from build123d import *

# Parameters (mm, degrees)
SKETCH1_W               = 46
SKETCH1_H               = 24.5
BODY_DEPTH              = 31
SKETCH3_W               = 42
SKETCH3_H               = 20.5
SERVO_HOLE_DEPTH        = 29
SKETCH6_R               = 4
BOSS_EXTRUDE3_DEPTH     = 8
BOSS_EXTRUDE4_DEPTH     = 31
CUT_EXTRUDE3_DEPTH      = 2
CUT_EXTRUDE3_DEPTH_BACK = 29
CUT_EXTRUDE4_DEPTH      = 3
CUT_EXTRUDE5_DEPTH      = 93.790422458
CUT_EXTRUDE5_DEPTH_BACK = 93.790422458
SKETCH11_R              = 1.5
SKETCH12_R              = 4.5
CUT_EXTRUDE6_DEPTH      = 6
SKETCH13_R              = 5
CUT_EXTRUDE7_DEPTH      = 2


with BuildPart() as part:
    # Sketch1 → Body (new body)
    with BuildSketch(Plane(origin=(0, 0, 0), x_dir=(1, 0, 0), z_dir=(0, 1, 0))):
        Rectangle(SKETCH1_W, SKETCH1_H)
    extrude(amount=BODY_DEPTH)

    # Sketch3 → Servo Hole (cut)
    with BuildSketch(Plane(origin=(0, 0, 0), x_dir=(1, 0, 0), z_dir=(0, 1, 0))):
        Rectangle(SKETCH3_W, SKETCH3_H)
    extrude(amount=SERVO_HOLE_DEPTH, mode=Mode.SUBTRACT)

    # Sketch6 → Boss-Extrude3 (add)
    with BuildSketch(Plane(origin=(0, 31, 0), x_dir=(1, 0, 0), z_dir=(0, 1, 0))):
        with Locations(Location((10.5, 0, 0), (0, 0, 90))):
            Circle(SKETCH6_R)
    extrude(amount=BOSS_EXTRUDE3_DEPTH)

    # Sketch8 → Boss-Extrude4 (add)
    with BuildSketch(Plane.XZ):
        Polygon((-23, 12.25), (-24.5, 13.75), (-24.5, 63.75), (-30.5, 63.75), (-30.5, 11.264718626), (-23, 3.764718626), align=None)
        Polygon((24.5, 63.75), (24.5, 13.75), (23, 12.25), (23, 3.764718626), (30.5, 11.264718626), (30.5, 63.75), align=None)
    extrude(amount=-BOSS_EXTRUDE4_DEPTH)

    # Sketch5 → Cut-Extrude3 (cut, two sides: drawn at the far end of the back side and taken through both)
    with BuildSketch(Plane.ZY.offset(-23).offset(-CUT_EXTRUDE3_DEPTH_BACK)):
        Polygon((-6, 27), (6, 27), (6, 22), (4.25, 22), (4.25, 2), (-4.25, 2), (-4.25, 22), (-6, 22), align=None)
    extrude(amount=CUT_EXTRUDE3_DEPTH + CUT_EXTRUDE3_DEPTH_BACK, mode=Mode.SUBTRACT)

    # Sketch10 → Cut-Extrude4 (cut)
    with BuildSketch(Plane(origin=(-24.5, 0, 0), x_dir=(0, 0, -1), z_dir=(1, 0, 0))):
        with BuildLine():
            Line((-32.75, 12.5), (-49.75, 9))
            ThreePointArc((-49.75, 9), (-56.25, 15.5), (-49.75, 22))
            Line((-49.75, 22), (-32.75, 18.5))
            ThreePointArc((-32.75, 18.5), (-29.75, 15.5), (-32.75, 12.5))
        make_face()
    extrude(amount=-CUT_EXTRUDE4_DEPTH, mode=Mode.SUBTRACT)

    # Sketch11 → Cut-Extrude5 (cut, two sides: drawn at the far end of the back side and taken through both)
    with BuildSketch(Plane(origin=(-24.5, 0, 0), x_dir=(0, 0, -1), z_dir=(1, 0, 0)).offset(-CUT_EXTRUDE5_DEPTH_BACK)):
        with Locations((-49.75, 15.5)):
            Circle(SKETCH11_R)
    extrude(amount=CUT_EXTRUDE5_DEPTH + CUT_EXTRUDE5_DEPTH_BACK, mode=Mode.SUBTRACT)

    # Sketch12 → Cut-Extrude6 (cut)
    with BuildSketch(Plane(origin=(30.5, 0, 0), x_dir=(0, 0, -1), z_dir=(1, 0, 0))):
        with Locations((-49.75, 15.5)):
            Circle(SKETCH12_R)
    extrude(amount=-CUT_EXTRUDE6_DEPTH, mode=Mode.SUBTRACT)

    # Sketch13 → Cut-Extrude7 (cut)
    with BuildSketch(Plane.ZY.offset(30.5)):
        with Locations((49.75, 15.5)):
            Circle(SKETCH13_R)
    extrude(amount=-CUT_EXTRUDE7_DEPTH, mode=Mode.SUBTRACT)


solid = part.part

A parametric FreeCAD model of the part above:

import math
import FreeCAD as App
import Part
import Sketcher

V = App.Vector

doc = App.newDocument("Part")
params = doc.addObject("Spreadsheet::Sheet", "Params")
for row, (alias, value) in enumerate([
    ("sketch1_width", "46 mm"),
    ("sketch1_height", "24.5 mm"),
    ("pad1_length", "31 mm"),
    ("sketch2_width", "42 mm"),
    ("sketch2_height", "20.5 mm"),
    ("pocket1_length", "29 mm"),
    ("sketch3_diameter", "8 mm"),
    ("pad2_length", "8 mm"),
    ("sketch4_width", "6 mm"),
    ("sketch4_height", "50 mm"),
    ("pad3_length", "31 mm"),
    ("sketch5_width", "5 mm"),
    ("sketch5_width2", "20 mm"),
    ("sketch5_height", "12 mm"),
    ("sketch5_height2", "8.5 mm"),
    ("pocket2_length", "2 mm"),
    ("pocket2_length2", "29 mm"),
    ("sketch6_radius", "3 mm"),
    ("sketch6_radius2", "6.5 mm"),
    ("pocket3_length", "3 mm"),
    ("sketch7_diameter", "3 mm"),
    ("sketch8_diameter", "9 mm"),
    ("pocket5_length", "6 mm"),
    ("sketch9_diameter", "10 mm"),
    ("pocket6_length", "2 mm"),
], start=1):
    params.set(f"A{row}", alias)
    params.set(f"B{row}", "=" + value)
    params.setAlias(f"B{row}", alias)

body = doc.addObject("PartDesign::Body", "Body")

# Sketch on XZ plane
sketch1 = body.newObject("Sketcher::SketchObject", "Sketch")
sketch1.AttachmentSupport = (doc.getObject("XZ_Plane"), [""])
sketch1.MapMode = "FlatFace"
sketch1.addGeometry([
    Part.LineSegment(V(-23, -12, 0), V(-23, 12, 0)),
    Part.LineSegment(V(-23, 12, 0), V(23, 12, 0)),
    Part.LineSegment(V(23, 12, 0), V(23, -12, 0)),
    Part.LineSegment(V(23, -12, 0), V(-23, -12, 0)),
], False)
sketch1.addConstraint([
    Sketcher.Constraint("Coincident", 0, 2, 1, 1),
    Sketcher.Constraint("Coincident", 1, 2, 2, 1),
    Sketcher.Constraint("Coincident", 2, 2, 3, 1),
    Sketcher.Constraint("Coincident", 3, 2, 0, 1),
    Sketcher.Constraint("Vertical", 0),
    Sketcher.Constraint("Horizontal", 1),
    Sketcher.Constraint("Vertical", 2),
    Sketcher.Constraint("Horizontal", 3),
    Sketcher.Constraint("Symmetric", 0, 2, 2, 2, -1, 1),
    Sketcher.Constraint("DistanceX", 1, 1, 1, 2, 46.0),
    Sketcher.Constraint("DistanceY", 0, 1, 0, 2, 24.5),
])
sketch1.setExpression("Constraints[9]", "Params.sketch1_width")
sketch1.setExpression("Constraints[10]", "Params.sketch1_height")
pad1 = body.newObject("PartDesign::Pad", "Pad")
pad1.Profile = sketch1
pad1.setExpression("Length", "Params.pad1_length")
pad1.Reversed = True

# Sketch on XZ plane
sketch2 = body.newObject("Sketcher::SketchObject", "Sketch001")
sketch2.AttachmentSupport = (doc.getObject("XZ_Plane"), [""])
sketch2.MapMode = "FlatFace"
sketch2.addGeometry([
    Part.LineSegment(V(-21, -10, 0), V(-21, 10, 0)),
    Part.LineSegment(V(-21, 10, 0), V(21, 10, 0)),
    Part.LineSegment(V(21, 10, 0), V(21, -10, 0)),
    Part.LineSegment(V(21, -10, 0), V(-21, -10, 0)),
], False)
sketch2.addConstraint([
    Sketcher.Constraint("Coincident", 0, 2, 1, 1),
    Sketcher.Constraint("Coincident", 1, 2, 2, 1),
    Sketcher.Constraint("Coincident", 2, 2, 3, 1),
    Sketcher.Constraint("Coincident", 3, 2, 0, 1),
    Sketcher.Constraint("Vertical", 0),
    Sketcher.Constraint("Horizontal", 1),
    Sketcher.Constraint("Vertical", 2),
    Sketcher.Constraint("Horizontal", 3),
    Sketcher.Constraint("Symmetric", 0, 2, 2, 2, -1, 1),
    Sketcher.Constraint("DistanceX", 1, 1, 1, 2, 42.0),
    Sketcher.Constraint("DistanceY", 0, 1, 0, 2, 20.5),
])
sketch2.setExpression("Constraints[9]", "Params.sketch2_width")
sketch2.setExpression("Constraints[10]", "Params.sketch2_height")
pocket1 = body.newObject("PartDesign::Pocket", "Pocket")
pocket1.Profile = sketch2
pocket1.setExpression("Length", "Params.pocket1_length")

# Sketch on XZ plane
sketch3 = body.newObject("Sketcher::SketchObject", "Sketch002")
sketch3.AttachmentSupport = (doc.getObject("XZ_Plane"), [""])
sketch3.MapMode = "FlatFace"
sketch3.AttachmentOffset = App.Placement(V(0, 0, -31), App.Rotation())
sketch3.addGeometry(Part.Circle(V(10.5, 0, 0), V(0, 0, 1), 4), False)
sketch3.addConstraint([
    Sketcher.Constraint("PointOnObject", 0, 3, -1),
    Sketcher.Constraint("Diameter", 0, 8.0),
    Sketcher.Constraint("DistanceX", -1, 1, 0, 3, 10.5),
])
sketch3.setExpression("Constraints[1]", "Params.sketch3_diameter")
pad2 = body.newObject("PartDesign::Pad", "Pad001")
pad2.Profile = sketch3
pad2.setExpression("Length", "Params.pad2_length")
pad2.Reversed = True

# Sketch on XZ plane
sketch4 = body.newObject("Sketcher::SketchObject", "Sketch003")
sketch4.AttachmentSupport = (doc.getObject("XZ_Plane"), [""])
sketch4.MapMode = "FlatFace"
sketch4.addGeometry([
    Part.LineSegment(V(-23, 12.2, 0), V(-24.5, 13.8, 0)),  # 0
    Part.LineSegment(V(-24.5, 13.8, 0), V(-24.5, 63.8, 0)),  # 1
    Part.LineSegment(V(-24.5, 63.8, 0), V(-30.5, 63.8, 0)),  # 2
    Part.LineSegment(V(-30.5, 63.8, 0), V(-30.5, 11.3, 0)),  # 3
    Part.LineSegment(V(-30.5, 11.3, 0), V(-23, 3.8, 0)),  # 4
    Part.LineSegment(V(-23, 3.8, 0), V(-23, 12.2, 0)),  # 5
    Part.LineSegment(V(24.5, 63.8, 0), V(24.5, 13.8, 0)),  # 6
    Part.LineSegment(V(24.5, 13.8, 0), V(23, 12.2, 0)),  # 7
    Part.LineSegment(V(23, 12.2, 0), V(23, 3.8, 0)),  # 8
    Part.LineSegment(V(23, 3.8, 0), V(30.5, 11.3, 0)),  # 9
    Part.LineSegment(V(30.5, 11.3, 0), V(30.5, 63.8, 0)),  # 10
    Part.LineSegment(V(30.5, 63.8, 0), V(24.5, 63.8, 0)),  # 11
], False)
sketch4.addConstraint([
    Sketcher.Constraint("Coincident", 0, 2, 1, 1),
    Sketcher.Constraint("Coincident", 1, 2, 2, 1),
    Sketcher.Constraint("Coincident", 2, 2, 3, 1),
    Sketcher.Constraint("Coincident", 3, 2, 4, 1),
    Sketcher.Constraint("Coincident", 4, 2, 5, 1),
    Sketcher.Constraint("Coincident", 5, 2, 0, 1),
    Sketcher.Constraint("Coincident", 6, 2, 7, 1),
    Sketcher.Constraint("Coincident", 7, 2, 8, 1),
    Sketcher.Constraint("Coincident", 8, 2, 9, 1),
    Sketcher.Constraint("Coincident", 9, 2, 10, 1),
    Sketcher.Constraint("Coincident", 10, 2, 11, 1),
    Sketcher.Constraint("Coincident", 11, 2, 6, 1),
    Sketcher.Constraint("Vertical", 1),
    Sketcher.Constraint("Horizontal", 2),
    Sketcher.Constraint("Vertical", 3),
    Sketcher.Constraint("Vertical", 5),
    Sketcher.Constraint("Vertical", 6),
    Sketcher.Constraint("Vertical", 8),
    Sketcher.Constraint("Vertical", 10),
    Sketcher.Constraint("Horizontal", 11),
    Sketcher.Constraint("Symmetric", 0, 2, 6, 2, -2),
    Sketcher.Constraint("Symmetric", 5, 2, 7, 2, -2),
    Sketcher.Constraint("Symmetric", 3, 2, 9, 2, -2),
    Sketcher.Constraint("Parallel", 0, 4),
    Sketcher.Constraint("Perpendicular", 4, 7),
    Sketcher.Constraint("Parallel", 7, 9),
    Sketcher.Constraint("Horizontal", 2, 2, 10, 2),
    Sketcher.Constraint("DistanceX", 2, 2, 2, 1, 6.0),
    Sketcher.Constraint("DistanceY", 1, 1, 1, 2, 50.0),
    Sketcher.Constraint("DistanceX", 4, 2, -1, 1, 23.0),
    Sketcher.Constraint("DistanceX", 0, 2, 6, 2, 49.0),
    Sketcher.Constraint("DistanceY", -1, 1, 0, 2, 13.75),
    Sketcher.Constraint("DistanceY", 3, 2, 3, 1, 52.485281),
])
sketch4.setExpression("Constraints[27]", "Params.sketch4_width")
sketch4.setExpression("Constraints[28]", "Params.sketch4_height")
pad3 = body.newObject("PartDesign::Pad", "Pad002")
pad3.Profile = sketch4
pad3.setExpression("Length", "Params.pad3_length")
pad3.Reversed = True

# Sketch on YZ plane
sketch5 = body.newObject("Sketcher::SketchObject", "Sketch004")
sketch5.AttachmentSupport = (doc.getObject("YZ_Plane"), [""])
sketch5.MapMode = "FlatFace"
sketch5.AttachmentOffset = App.Placement(V(0, 0, 23), App.Rotation())
sketch5.addGeometry([
    Part.LineSegment(V(27, 6, 0), V(27, -6, 0)),  # 0
    Part.LineSegment(V(27, -6, 0), V(22, -6, 0)),  # 1
    Part.LineSegment(V(22, -6, 0), V(22, -4.2, 0)),  # 2
    Part.LineSegment(V(22, -4.2, 0), V(2, -4.2, 0)),  # 3
    Part.LineSegment(V(2, -4.2, 0), V(2, 4.2, 0)),  # 4
    Part.LineSegment(V(2, 4.2, 0), V(22, 4.2, 0)),  # 5
    Part.LineSegment(V(22, 4.2, 0), V(22, 6, 0)),  # 6
    Part.LineSegment(V(22, 6, 0), V(27, 6, 0)),  # 7
], False)
sketch5.addConstraint([
    Sketcher.Constraint("Coincident", 0, 2, 1, 1),
    Sketcher.Constraint("Coincident", 1, 2, 2, 1),
    Sketcher.Constraint("Coincident", 2, 2, 3, 1),
    Sketcher.Constraint("Coincident", 3, 2, 4, 1),
    Sketcher.Constraint("Coincident", 4, 2, 5, 1),
    Sketcher.Constraint("Coincident", 5, 2, 6, 1),
    Sketcher.Constraint("Coincident", 6, 2, 7, 1),
    Sketcher.Constraint("Coincident", 7, 2, 0, 1),
    Sketcher.Constraint("Vertical", 0),
    Sketcher.Constraint("Horizontal", 1),
    Sketcher.Constraint("Vertical", 2),
    Sketcher.Constraint("Horizontal", 3),
    Sketcher.Constraint("Vertical", 4),
    Sketcher.Constraint("Horizontal", 5),
    Sketcher.Constraint("Vertical", 6),
    Sketcher.Constraint("Horizontal", 7),
    Sketcher.Constraint("Symmetric", 2, 2, 5, 2, -1),
    Sketcher.Constraint("Equal", 2, 6),
    Sketcher.Constraint("DistanceX", 1, 2, 1, 1, 5.0),
    Sketcher.Constraint("DistanceX", 3, 2, 3, 1, 20.0),
    Sketcher.Constraint("DistanceY", 0, 2, 0, 1, 12.0),
    Sketcher.Constraint("DistanceY", 4, 1, 4, 2, 8.5),
    Sketcher.Constraint("DistanceX", -1, 1, 0, 2, 27.0),
])
sketch5.setExpression("Constraints[18]", "Params.sketch5_width")
sketch5.setExpression("Constraints[19]", "Params.sketch5_width2")
sketch5.setExpression("Constraints[20]", "Params.sketch5_height")
sketch5.setExpression("Constraints[21]", "Params.sketch5_height2")
pocket2 = body.newObject("PartDesign::Pocket", "Pocket001")
pocket2.Profile = sketch5
pocket2.Type = "TwoLengths"
pocket2.setExpression("Length", "Params.pocket2_length")
pocket2.setExpression("Length2", "Params.pocket2_length2")

# Sketch on YZ plane
sketch6 = body.newObject("Sketcher::SketchObject", "Sketch005")
sketch6.AttachmentSupport = (doc.getObject("YZ_Plane"), [""])
sketch6.MapMode = "FlatFace"
sketch6.AttachmentOffset = App.Placement(V(0, 0, -24.5), App.Rotation())
sketch6.addGeometry([
    Part.LineSegment(V(9, 49.8, 0), V(12.5, 32.8, 0)),
    Part.ArcOfCircle(Part.Circle(V(15.5, 32.8, 0), V(0, 0, 1), 3), math.radians(180), math.radians(360)),
    Part.LineSegment(V(18.5, 32.8, 0), V(22, 49.8, 0)),
    Part.ArcOfCircle(Part.Circle(V(15.5, 49.8, 0), V(0, 0, 1), 6.5), math.radians(0), math.radians(180)),
], False)
sketch6.addConstraint([
    Sketcher.Constraint("Coincident", 0, 2, 1, 1),
    Sketcher.Constraint("Coincident", 1, 2, 2, 1),
    Sketcher.Constraint("Coincident", 2, 2, 3, 1),
    Sketcher.Constraint("Coincident", 3, 2, 0, 1),
    Sketcher.Constraint("Horizontal", 1, 3, 0, 2),
    Sketcher.Constraint("Horizontal", 0, 2, 1, 2),
    Sketcher.Constraint("Horizontal", 3, 3, 2, 2),
    Sketcher.Constraint("Horizontal", 2, 2, 3, 2),
    Sketcher.Constraint("Vertical", 1, 3, 3, 3),
    Sketcher.Constraint("Radius", 1, 3.0),
    Sketcher.Constraint("Radius", 3, 6.5),
    Sketcher.Constraint("DistanceX", -1, 1, 2, 2, 22.0),
    Sketcher.Constraint("DistanceY", 1, 3, 3, 3, 17.0),
    Sketcher.Constraint("DistanceY", -1, 1, 1, 3, 32.75),
])
sketch6.setExpression("Constraints[9]", "Params.sketch6_radius")
sketch6.setExpression("Constraints[10]", "Params.sketch6_radius2")
pocket3 = body.newObject("PartDesign::Pocket", "Pocket002")
pocket3.Profile = sketch6
pocket3.setExpression("Length", "Params.pocket3_length")

# Sketch on YZ plane
sketch7 = body.newObject("Sketcher::SketchObject", "Sketch006")
sketch7.AttachmentSupport = (doc.getObject("YZ_Plane"), [""])
sketch7.MapMode = "FlatFace"
sketch7.AttachmentOffset = App.Placement(V(0, 0, -24.5), App.Rotation())
sketch7.addGeometry(Part.Circle(V(15.5, 49.8, 0), V(0, 0, 1), 1.5), False)
sketch7.addConstraint([
    Sketcher.Constraint("Diameter", 0, 3.0),
    Sketcher.Constraint("DistanceX", -1, 1, 0, 3, 15.5),
    Sketcher.Constraint("DistanceY", -1, 1, 0, 3, 49.75),
])
sketch7.setExpression("Constraints[0]", "Params.sketch7_diameter")
pocket4 = body.newObject("PartDesign::Pocket", "Pocket003")
pocket4.Profile = sketch7
pocket4.Type = "ThroughAll"
pocket4.Midplane = True

# Sketch on YZ plane
sketch8 = body.newObject("Sketcher::SketchObject", "Sketch007")
sketch8.AttachmentSupport = (doc.getObject("YZ_Plane"), [""])
sketch8.MapMode = "FlatFace"
sketch8.AttachmentOffset = App.Placement(V(0, 0, 30.5), App.Rotation())
sketch8.addGeometry(Part.Circle(V(15.5, 49.8, 0), V(0, 0, 1), 4.5), False)
sketch8.addConstraint([
    Sketcher.Constraint("Diameter", 0, 9.0),
    Sketcher.Constraint("DistanceX", -1, 1, 0, 3, 15.5),
    Sketcher.Constraint("DistanceY", -1, 1, 0, 3, 49.75),
])
sketch8.setExpression("Constraints[0]", "Params.sketch8_diameter")
pocket5 = body.newObject("PartDesign::Pocket", "Pocket004")
pocket5.Profile = sketch8
pocket5.setExpression("Length", "Params.pocket5_length")

# Sketch on YZ plane
sketch9 = body.newObject("Sketcher::SketchObject", "Sketch008")
sketch9.AttachmentSupport = (doc.getObject("YZ_Plane"), [""])
sketch9.MapMode = "FlatFace"
sketch9.AttachmentOffset = App.Placement(V(0, 0, -30.5), App.Rotation())
sketch9.addGeometry(Part.Circle(V(16, 50, 0), V(0, 0, 1), 5), False)
sketch9.addConstraint([
    Sketcher.Constraint("Diameter", 0, 10.0),
    Sketcher.Constraint("DistanceX", -1, 1, 0, 3, 15.5),
    Sketcher.Constraint("DistanceY", -1, 1, 0, 3, 49.75),
])
sketch9.setExpression("Constraints[0]", "Params.sketch9_diameter")
pocket6 = body.newObject("PartDesign::Pocket", "Pocket005")
pocket6.Profile = sketch9
pocket6.setExpression("Length", "Params.pocket6_length")
pocket6.Reversed = True

doc.recompute()
